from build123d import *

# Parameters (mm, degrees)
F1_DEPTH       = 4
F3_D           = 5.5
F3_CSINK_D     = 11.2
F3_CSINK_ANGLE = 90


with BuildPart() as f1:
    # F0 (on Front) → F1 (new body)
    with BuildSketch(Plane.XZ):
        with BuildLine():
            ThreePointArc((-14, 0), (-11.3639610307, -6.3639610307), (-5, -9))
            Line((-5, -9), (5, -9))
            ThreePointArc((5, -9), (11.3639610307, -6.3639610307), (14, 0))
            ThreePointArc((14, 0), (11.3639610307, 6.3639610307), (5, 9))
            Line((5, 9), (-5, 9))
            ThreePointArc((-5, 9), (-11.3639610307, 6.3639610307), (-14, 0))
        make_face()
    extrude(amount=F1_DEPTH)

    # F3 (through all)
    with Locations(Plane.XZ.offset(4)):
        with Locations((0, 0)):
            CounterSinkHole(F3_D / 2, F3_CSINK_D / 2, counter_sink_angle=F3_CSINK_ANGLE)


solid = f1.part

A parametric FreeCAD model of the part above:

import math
import FreeCAD as App
import Part
import Sketcher
from FreeCAD import Vector
Q = App.Units.Quantity

doc = App.newDocument("Part")
body = doc.addObject("PartDesign::Body", "Body")

sketch1 = doc.addObject("Sketcher::SketchObject", "Sketch")
body.addObject(sketch1)
sketch1.AttachmentSupport = (doc.XZ_Plane, [""])
sketch1.MapMode = "FlatFace"
sketch1.addGeometry([
    Part.ArcOfCircle(Part.Circle(Vector(-5, 0, 0), Vector(0, 0, 1), 9), math.radians(180), math.radians(270)),
    Part.LineSegment(Vector(-5, -9, 0), Vector(5, -9, 0)),
    Part.ArcOfCircle(Part.Circle(Vector(5, 0, 0), Vector(0, 0, 1), 9), math.radians(-90), math.radians(0)),
    Part.ArcOfCircle(Part.Circle(Vector(5, 0, 0), Vector(0, 0, 1), 9), math.radians(0), math.radians(90)),
    Part.LineSegment(Vector(5, 9, 0), Vector(-5, 9, 0)),
    Part.ArcOfCircle(Part.Circle(Vector(-5, 0, 0), Vector(0, 0, 1), 9), math.radians(90), math.radians(180)),
], False)
sketch1.addConstraint([
    Sketcher.Constraint("Tangent", 0, 2, 1, 1),
    Sketcher.Constraint("Tangent", 1, 2, 2, 1),
    Sketcher.Constraint("Tangent", 2, 2, 3, 1),
    Sketcher.Constraint("Tangent", 3, 2, 4, 1),
    Sketcher.Constraint("Tangent", 4, 2, 5, 1),
    Sketcher.Constraint("Tangent", 5, 2, 0, 1),
    Sketcher.Constraint("Horizontal", 1),
    Sketcher.Constraint("Horizontal", 4),
    Sketcher.Constraint("Equal", 0, 2),
    Sketcher.Constraint("Equal", 2, 3),
    Sketcher.Constraint("Symmetric", 0, 3, 2, 3, -1, 1),
    Sketcher.Constraint("PointOnObject", 2, 2, -1),
    Sketcher.Constraint("PointOnObject", 5, 2, -1),
    Sketcher.Constraint("Radius", 0, Q("9 mm")),
    Sketcher.Constraint("DistanceX", 1, 1, 1, 2, Q("10 mm")),
])
pad1 = doc.addObject("PartDesign::Pad", "Pad")
body.addObject(pad1)
pad1.Profile = sketch1
pad1.Length = 4

sketch2 = doc.addObject("Sketcher::SketchObject", "Sketch001")
body.addObject(sketch2)
sketch2.AttachmentSupport = (doc.XZ_Plane, [""])
sketch2.MapMode = "FlatFace"
sketch2.AttachmentOffset = App.Placement(Vector(0, 0, 4), App.Rotation())
sketch2.addGeometry(Part.Circle(Vector(0, 0, 0), Vector(0, 0, 1), 2.8), False)
sketch2.addConstraint([
    Sketcher.Constraint("Coincident", 0, 3, -1, 1),
    Sketcher.Constraint("Diameter", 0, Q("5.5 mm")),
])
doc.recompute()
hole = doc.addObject("PartDesign::Hole", "Hole")
body.addObject(hole)
hole.Profile = sketch2
hole.ThreadType = "None"
hole.Diameter = 5.5
hole.DepthType = "ThroughAll"
hole.HoleCutType = "Countersink"
hole.HoleCutDiameter = 11.2
hole.HoleCutCountersinkAngle = 90

doc.recompute()
